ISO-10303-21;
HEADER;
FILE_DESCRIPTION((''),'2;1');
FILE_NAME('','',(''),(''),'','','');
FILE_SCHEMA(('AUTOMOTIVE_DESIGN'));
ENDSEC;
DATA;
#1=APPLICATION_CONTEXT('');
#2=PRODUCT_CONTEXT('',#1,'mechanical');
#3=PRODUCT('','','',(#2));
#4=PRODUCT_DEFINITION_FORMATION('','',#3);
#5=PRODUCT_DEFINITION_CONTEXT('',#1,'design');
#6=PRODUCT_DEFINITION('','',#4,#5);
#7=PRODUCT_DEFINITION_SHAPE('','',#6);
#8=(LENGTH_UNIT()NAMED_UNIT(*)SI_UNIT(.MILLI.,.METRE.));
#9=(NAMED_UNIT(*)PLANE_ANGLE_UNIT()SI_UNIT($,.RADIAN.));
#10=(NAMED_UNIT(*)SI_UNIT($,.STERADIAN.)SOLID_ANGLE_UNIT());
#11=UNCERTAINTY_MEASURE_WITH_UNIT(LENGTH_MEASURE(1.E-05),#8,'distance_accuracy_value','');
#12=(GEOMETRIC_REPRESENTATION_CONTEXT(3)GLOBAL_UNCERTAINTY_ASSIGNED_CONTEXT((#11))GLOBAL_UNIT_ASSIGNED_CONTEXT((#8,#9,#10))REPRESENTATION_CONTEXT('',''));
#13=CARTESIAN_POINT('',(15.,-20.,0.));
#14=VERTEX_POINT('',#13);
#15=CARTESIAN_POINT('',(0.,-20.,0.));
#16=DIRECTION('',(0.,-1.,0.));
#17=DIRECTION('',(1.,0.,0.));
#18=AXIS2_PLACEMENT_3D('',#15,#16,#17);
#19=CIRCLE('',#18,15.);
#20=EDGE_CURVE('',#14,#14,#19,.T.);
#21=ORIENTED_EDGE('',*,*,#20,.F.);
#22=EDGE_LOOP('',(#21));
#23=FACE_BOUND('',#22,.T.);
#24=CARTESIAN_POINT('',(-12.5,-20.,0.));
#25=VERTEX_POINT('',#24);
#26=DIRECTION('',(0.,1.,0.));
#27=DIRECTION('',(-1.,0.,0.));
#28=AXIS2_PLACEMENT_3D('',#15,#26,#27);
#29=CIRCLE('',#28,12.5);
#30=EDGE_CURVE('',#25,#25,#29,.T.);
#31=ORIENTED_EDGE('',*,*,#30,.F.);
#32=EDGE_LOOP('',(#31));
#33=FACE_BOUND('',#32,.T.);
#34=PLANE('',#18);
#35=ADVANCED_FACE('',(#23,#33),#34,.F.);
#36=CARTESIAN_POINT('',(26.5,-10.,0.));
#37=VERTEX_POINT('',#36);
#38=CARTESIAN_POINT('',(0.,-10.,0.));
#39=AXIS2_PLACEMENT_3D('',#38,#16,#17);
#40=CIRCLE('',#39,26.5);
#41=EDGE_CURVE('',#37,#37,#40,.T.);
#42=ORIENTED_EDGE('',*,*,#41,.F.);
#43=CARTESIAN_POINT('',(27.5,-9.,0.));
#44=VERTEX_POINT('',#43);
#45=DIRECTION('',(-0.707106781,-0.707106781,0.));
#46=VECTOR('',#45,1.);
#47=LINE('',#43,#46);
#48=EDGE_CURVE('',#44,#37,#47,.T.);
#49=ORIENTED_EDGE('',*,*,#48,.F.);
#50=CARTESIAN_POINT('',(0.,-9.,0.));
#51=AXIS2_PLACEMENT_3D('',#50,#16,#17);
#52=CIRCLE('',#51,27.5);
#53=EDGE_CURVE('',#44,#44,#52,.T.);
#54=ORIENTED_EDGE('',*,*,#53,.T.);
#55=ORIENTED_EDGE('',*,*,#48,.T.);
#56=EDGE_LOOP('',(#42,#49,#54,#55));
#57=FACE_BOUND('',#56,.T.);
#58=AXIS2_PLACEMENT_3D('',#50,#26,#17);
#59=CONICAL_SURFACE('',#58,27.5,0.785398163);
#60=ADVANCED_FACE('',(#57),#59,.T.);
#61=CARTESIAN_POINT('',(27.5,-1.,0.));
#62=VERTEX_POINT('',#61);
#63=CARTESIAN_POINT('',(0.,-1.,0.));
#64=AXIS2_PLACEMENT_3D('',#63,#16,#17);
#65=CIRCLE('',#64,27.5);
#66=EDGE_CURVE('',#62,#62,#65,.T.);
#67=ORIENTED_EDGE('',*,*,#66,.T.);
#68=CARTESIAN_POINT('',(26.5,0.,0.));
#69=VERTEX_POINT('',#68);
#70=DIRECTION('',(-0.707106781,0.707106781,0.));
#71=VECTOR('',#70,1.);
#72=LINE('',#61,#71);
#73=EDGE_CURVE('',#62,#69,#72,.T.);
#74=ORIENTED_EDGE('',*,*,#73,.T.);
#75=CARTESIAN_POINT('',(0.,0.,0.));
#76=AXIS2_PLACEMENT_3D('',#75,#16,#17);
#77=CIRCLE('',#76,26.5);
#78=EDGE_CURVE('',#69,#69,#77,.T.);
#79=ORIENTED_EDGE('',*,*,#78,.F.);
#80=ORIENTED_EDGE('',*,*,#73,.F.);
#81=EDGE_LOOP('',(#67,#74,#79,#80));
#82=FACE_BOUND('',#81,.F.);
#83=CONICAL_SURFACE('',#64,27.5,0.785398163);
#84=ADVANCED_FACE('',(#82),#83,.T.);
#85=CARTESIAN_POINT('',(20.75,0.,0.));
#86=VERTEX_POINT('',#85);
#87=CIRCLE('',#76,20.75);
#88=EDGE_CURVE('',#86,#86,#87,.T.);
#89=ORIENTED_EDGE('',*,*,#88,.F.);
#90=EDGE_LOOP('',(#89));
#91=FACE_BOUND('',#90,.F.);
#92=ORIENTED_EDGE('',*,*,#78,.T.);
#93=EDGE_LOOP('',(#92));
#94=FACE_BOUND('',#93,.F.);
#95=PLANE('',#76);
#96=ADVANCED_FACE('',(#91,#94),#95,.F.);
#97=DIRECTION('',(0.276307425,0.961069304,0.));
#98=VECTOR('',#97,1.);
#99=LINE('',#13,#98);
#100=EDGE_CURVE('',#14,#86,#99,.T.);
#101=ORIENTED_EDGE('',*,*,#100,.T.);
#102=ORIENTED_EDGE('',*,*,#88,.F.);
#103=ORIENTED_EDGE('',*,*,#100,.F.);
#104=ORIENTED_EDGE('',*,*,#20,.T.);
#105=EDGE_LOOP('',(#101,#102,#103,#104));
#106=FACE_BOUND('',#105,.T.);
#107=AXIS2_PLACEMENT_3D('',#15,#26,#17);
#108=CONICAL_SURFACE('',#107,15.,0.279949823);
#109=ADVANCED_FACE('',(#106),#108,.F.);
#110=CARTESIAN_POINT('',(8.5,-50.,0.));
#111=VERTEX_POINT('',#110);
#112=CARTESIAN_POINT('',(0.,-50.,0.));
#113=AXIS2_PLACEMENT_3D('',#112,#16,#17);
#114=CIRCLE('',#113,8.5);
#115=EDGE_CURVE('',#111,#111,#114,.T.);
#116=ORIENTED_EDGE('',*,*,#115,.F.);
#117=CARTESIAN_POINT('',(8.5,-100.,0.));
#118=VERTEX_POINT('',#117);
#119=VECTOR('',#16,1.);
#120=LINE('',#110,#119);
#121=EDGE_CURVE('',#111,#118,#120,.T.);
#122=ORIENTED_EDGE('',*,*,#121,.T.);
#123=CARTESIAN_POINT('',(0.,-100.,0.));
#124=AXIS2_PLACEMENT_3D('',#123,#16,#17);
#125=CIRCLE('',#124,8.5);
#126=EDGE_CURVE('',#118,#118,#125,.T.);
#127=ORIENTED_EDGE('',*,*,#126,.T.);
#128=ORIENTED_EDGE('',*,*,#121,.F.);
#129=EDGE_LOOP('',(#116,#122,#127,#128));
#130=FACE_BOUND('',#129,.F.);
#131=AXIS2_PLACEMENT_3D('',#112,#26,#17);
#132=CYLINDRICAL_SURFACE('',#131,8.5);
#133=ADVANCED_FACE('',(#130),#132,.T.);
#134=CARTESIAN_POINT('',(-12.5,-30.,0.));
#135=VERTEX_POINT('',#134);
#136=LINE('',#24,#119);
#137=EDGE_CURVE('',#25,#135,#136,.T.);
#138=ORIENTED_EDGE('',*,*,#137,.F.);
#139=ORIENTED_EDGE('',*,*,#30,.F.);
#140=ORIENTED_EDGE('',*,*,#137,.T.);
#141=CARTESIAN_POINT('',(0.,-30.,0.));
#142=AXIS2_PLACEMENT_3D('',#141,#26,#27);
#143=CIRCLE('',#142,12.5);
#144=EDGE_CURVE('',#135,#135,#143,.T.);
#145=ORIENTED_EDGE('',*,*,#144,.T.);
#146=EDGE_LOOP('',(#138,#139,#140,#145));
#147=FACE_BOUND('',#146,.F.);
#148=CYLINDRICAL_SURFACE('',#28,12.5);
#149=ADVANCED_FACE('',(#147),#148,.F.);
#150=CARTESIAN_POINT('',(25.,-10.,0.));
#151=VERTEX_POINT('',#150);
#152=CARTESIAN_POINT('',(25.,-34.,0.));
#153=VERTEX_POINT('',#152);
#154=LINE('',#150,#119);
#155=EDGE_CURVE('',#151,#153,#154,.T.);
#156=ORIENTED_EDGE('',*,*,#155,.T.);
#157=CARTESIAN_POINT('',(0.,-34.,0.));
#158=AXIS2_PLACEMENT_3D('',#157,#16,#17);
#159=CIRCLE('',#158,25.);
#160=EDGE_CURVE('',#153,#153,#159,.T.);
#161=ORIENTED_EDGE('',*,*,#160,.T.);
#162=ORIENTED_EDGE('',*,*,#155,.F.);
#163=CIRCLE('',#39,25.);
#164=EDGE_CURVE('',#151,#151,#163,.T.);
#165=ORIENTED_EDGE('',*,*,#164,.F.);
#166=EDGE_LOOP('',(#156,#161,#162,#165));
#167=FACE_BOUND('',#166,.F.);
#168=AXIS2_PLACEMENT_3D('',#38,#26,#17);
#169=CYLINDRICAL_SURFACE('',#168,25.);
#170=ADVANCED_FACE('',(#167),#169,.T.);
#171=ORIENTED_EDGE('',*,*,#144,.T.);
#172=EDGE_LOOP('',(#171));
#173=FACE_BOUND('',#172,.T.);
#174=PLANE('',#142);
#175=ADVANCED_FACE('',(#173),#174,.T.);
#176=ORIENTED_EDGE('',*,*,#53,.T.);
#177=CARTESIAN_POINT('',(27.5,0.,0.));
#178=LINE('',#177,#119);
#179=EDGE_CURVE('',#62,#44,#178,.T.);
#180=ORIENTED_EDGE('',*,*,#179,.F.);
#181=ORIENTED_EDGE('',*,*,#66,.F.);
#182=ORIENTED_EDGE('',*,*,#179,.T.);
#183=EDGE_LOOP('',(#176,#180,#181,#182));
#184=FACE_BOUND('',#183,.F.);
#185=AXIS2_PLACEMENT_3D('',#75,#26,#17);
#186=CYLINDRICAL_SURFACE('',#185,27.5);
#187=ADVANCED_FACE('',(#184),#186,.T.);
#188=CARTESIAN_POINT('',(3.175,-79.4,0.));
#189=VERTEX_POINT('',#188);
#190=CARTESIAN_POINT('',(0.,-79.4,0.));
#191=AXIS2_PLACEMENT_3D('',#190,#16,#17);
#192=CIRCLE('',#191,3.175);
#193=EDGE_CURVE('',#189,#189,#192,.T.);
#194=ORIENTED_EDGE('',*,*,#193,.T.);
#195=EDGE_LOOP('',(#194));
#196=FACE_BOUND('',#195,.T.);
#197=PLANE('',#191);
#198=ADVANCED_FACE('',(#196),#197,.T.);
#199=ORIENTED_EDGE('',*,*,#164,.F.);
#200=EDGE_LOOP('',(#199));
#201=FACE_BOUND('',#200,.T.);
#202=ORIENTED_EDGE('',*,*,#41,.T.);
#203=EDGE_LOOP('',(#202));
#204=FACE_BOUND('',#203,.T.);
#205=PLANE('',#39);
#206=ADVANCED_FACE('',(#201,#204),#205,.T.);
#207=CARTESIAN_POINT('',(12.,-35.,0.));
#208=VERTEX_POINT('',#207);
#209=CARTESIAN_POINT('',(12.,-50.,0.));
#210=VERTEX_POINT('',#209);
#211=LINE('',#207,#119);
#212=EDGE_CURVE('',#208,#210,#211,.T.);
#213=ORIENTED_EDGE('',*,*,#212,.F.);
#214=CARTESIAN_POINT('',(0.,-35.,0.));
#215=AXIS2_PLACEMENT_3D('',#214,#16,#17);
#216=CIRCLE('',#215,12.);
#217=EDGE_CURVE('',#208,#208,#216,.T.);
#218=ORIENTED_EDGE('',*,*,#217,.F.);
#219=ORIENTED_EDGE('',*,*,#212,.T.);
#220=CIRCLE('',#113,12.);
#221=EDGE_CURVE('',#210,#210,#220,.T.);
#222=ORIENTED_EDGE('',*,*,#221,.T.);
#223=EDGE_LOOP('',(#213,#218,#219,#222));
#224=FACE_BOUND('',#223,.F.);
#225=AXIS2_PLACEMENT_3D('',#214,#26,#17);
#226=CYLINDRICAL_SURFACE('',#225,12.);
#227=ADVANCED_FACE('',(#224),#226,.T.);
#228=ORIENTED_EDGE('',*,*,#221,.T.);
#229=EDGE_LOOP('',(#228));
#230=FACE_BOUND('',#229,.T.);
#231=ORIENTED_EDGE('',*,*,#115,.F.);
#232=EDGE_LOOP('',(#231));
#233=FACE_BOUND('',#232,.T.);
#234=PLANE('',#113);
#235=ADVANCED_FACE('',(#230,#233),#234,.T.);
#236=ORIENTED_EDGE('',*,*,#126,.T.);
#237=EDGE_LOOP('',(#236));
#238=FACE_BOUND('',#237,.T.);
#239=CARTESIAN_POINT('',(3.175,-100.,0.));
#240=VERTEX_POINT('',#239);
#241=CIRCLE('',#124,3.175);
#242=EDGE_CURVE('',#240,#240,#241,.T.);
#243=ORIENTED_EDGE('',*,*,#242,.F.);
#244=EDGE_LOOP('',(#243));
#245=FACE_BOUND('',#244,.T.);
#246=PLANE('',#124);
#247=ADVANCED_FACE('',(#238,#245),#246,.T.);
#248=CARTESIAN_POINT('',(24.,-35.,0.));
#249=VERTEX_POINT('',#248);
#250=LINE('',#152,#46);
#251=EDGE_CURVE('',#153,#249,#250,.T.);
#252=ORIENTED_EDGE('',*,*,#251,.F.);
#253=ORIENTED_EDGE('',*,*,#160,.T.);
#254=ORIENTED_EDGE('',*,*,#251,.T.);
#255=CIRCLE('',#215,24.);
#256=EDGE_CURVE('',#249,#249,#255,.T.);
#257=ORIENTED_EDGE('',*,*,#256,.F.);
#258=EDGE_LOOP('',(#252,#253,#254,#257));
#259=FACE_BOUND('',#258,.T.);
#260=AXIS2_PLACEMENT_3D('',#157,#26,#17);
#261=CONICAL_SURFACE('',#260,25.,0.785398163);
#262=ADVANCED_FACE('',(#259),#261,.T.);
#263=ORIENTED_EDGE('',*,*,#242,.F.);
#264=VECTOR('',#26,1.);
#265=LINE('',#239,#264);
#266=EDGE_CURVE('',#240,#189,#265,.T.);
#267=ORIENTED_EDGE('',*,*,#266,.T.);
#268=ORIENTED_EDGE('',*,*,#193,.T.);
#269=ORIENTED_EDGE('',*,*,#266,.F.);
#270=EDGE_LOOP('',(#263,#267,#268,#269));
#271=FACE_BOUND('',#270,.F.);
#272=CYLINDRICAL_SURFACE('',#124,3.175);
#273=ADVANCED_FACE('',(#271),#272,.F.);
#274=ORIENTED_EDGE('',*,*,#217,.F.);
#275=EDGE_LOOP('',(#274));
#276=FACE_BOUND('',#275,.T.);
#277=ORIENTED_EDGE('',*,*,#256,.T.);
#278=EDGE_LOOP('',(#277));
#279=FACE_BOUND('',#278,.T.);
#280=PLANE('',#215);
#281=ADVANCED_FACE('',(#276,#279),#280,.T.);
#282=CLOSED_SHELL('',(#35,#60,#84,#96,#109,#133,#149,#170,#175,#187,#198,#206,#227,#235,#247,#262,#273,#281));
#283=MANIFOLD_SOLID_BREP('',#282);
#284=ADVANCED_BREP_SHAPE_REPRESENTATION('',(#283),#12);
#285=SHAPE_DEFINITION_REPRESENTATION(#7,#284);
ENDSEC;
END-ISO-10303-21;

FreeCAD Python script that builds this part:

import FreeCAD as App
import Part
import Sketcher


def edges_at(feature, points):
    """Names of the edges that pass closest to the given points."""
    edges = feature.Shape.Edges
    near = lambda p: min(range(len(edges)), key=lambda i: edges[i].distToShape(Part.Vertex(*p))[0])
    return sorted({f"Edge{near(p) + 1}" for p in points})


def add_polygon(sketch, points):
    """Adds a closed chain of lines whose ends are joined by coincident constraints."""
    first, n = sketch.GeometryCount, len(points)
    for a, b in zip(points, points[1:] + points[:1]):
        sketch.addGeometry(Part.LineSegment(App.Vector(*a, 0), App.Vector(*b, 0)), False)
    for i in range(n):
        sketch.addConstraint(Sketcher.Constraint("Coincident", first + i, 2, first + (i + 1) % n, 1))

doc = App.newDocument("Part")
params = doc.addObject("Spreadsheet::Sheet", "Params")
for row, (alias, value) in enumerate([
    ("sketch1_diameter", "55 mm"),
    ("pad1_length", "10 mm"),
    ("sketch2_diameter", "50 mm"),
    ("pad2_length", "25 mm"),
    ("sketch3_diameter", "24 mm"),
    ("pad3_length", "15 mm"),
    ("chamfer_size", "1 mm"),
    ("sketch4_width", "15 mm"),
    ("sketch4_height", "20 mm"),
    ("sketch4_width2", "20.75 mm"),
    ("groove_angle", "360 deg"),
    ("sketch5_diameter", "25 mm"),
    ("pocket1_length", "10 mm"),
    ("sketch6_diameter", "17 mm"),
    ("pad4_length", "50 mm"),
    ("sketch7_diameter", "6.35 mm"),
    ("pocket2_length", "20.6 mm"),
], start=1):
    params.set(f"A{row}", alias)
    params.set(f"B{row}", "=" + value)
    params.setAlias(f"B{row}", alias)

body = doc.addObject("PartDesign::Body", "Body")

# Sketch on XZ plane
sketch1 = body.newObject("Sketcher::SketchObject", "Sketch")
sketch1.AttachmentSupport = (doc.getObject("XZ_Plane"), [""])
sketch1.MapMode = "FlatFace"
sketch1.addGeometry(Part.Circle(App.Vector(0, 0, 0), App.Vector(0, 0, 1), 27.5), False)
sketch1.addConstraint([
    Sketcher.Constraint("Coincident", 0, 3, -1, 1),
    Sketcher.Constraint("Diameter", 0, 55.0),
])
sketch1.setExpression("Constraints[1]", "Params.sketch1_diameter")
pad1 = body.newObject("PartDesign::Pad", "Pad")
pad1.Profile = sketch1
pad1.setExpression("Length", "Params.pad1_length")

# Sketch on XZ plane
sketch2 = body.newObject("Sketcher::SketchObject", "Sketch001")
sketch2.AttachmentSupport = (doc.getObject("XZ_Plane"), [""])
sketch2.MapMode = "FlatFace"
sketch2.AttachmentOffset = App.Placement(App.Vector(0, 0, 10), App.Rotation())
sketch2.addGeometry(Part.Circle(App.Vector(0, 0, 0), App.Vector(0, 0, 1), 25), False)
sketch2.addConstraint([
    Sketcher.Constraint("Coincident", 0, 3, -1, 1),
    Sketcher.Constraint("Diameter", 0, 50.0),
])
sketch2.setExpression("Constraints[1]", "Params.sketch2_diameter")
pad2 = body.newObject("PartDesign::Pad", "Pad001")
pad2.Profile = sketch2
pad2.setExpression("Length", "Params.pad2_length")

# Sketch on XZ plane
sketch3 = body.newObject("Sketcher::SketchObject", "Sketch002")
sketch3.AttachmentSupport = (doc.getObject("XZ_Plane"), [""])
sketch3.MapMode = "FlatFace"
sketch3.AttachmentOffset = App.Placement(App.Vector(0, 0, 35), App.Rotation())
sketch3.addGeometry(Part.Circle(App.Vector(0, 0, 0), App.Vector(0, 0, 1), 12), False)
sketch3.addConstraint([
    Sketcher.Constraint("Coincident", 0, 3, -1, 1),
    Sketcher.Constraint("Diameter", 0, 24.0),
])
sketch3.setExpression("Constraints[1]", "Params.sketch3_diameter")
pad3 = body.newObject("PartDesign::Pad", "Pad002")
pad3.Profile = sketch3
pad3.setExpression("Length", "Params.pad3_length")
doc.recompute()

chamfer = body.newObject("PartDesign::Chamfer", "Chamfer")
chamfer.Base = (pad3, edges_at(pad3, [(-27.5, -10, 0), (-27.5, 0, 0), (-25, -35, 0)]))
chamfer.setExpression("Size", "Params.chamfer_size")

# Sketch on XY plane
sketch4 = body.newObject("Sketcher::SketchObject", "Sketch003")
sketch4.AttachmentSupport = (doc.getObject("XY_Plane"), [""])
sketch4.MapMode = "FlatFace"
add_polygon(sketch4, [(20.75, 0), (0, 0), (0, -20), (15, -20)])  # lines 0-3
sketch4.addConstraint([
    Sketcher.Constraint("Horizontal", 0),
    Sketcher.Constraint("Vertical", 1),
    Sketcher.Constraint("Horizontal", 2),
    Sketcher.Constraint("Coincident", 0, 2, -1, 1),
    Sketcher.Constraint("DistanceX", 2, 1, 2, 2, 15.0),
    Sketcher.Constraint("DistanceY", 1, 2, 1, 1, 20.0),
    Sketcher.Constraint("DistanceX", 0, 2, 0, 1, 20.75),
])
sketch4.setExpression("Constraints[8]", "Params.sketch4_width")
sketch4.setExpression("Constraints[9]", "Params.sketch4_height")
sketch4.setExpression("Constraints[10]", "Params.sketch4_width2")
groove = body.newObject("PartDesign::Groove", "Groove")
groove.Profile = sketch4
groove.ReferenceAxis = (sketch4, ["V_Axis"])
groove.setExpression("Angle", "Params.groove_angle")

# Sketch on XZ plane
sketch5 = body.newObject("Sketcher::SketchObject", "Sketch004")
sketch5.AttachmentSupport = (doc.getObject("XZ_Plane"), [""])
sketch5.MapMode = "FlatFace"
sketch5.AttachmentOffset = App.Placement(App.Vector(0, 0, 20), App.Rotation())
sketch5.addGeometry(Part.Circle(App.Vector(0, 0, 0), App.Vector(0, 0, 1), 12.5), False)
sketch5.addConstraint([
    Sketcher.Constraint("Coincident", 0, 3, -1, 1),
    Sketcher.Constraint("Diameter", 0, 25.0),
])
sketch5.setExpression("Constraints[1]", "Params.sketch5_diameter")
pocket1 = body.newObject("PartDesign::Pocket", "Pocket")
pocket1.Profile = sketch5
pocket1.setExpression("Length", "Params.pocket1_length")
pocket1.Reversed = True

# Sketch on XZ plane
sketch6 = body.newObject("Sketcher::SketchObject", "Sketch005")
sketch6.AttachmentSupport = (doc.getObject("XZ_Plane"), [""])
sketch6.MapMode = "FlatFace"
sketch6.AttachmentOffset = App.Placement(App.Vector(0, 0, 50), App.Rotation())
sketch6.addGeometry(Part.Circle(App.Vector(0, 0, 0), App.Vector(0, 0, 1), 8.5), False)
sketch6.addConstraint([
    Sketcher.Constraint("Coincident", 0, 3, -1, 1),
    Sketcher.Constraint("Diameter", 0, 17.0),
])
sketch6.setExpression("Constraints[1]", "Params.sketch6_diameter")
pad4 = body.newObject("PartDesign::Pad", "Pad003")
pad4.Profile = sketch6
pad4.setExpression("Length", "Params.pad4_length")

# Sketch on XZ plane
sketch7 = body.newObject("Sketcher::SketchObject", "Sketch006")
sketch7.AttachmentSupport = (doc.getObject("XZ_Plane"), [""])
sketch7.MapMode = "FlatFace"
sketch7.AttachmentOffset = App.Placement(App.Vector(0, 0, 100), App.Rotation())
sketch7.addGeometry(Part.Circle(App.Vector(0, 0, 0), App.Vector(0, 0, 1), 3.175), False)
sketch7.addConstraint([
    Sketcher.Constraint("Coincident", 0, 3, -1, 1),
    Sketcher.Constraint("Diameter", 0, 6.35),
])
sketch7.setExpression("Constraints[1]", "Params.sketch7_diameter")
pocket2 = body.newObject("PartDesign::Pocket", "Pocket001")
pocket2.Profile = sketch7
pocket2.setExpression("Length", "Params.pocket2_length")

doc.recompute()
